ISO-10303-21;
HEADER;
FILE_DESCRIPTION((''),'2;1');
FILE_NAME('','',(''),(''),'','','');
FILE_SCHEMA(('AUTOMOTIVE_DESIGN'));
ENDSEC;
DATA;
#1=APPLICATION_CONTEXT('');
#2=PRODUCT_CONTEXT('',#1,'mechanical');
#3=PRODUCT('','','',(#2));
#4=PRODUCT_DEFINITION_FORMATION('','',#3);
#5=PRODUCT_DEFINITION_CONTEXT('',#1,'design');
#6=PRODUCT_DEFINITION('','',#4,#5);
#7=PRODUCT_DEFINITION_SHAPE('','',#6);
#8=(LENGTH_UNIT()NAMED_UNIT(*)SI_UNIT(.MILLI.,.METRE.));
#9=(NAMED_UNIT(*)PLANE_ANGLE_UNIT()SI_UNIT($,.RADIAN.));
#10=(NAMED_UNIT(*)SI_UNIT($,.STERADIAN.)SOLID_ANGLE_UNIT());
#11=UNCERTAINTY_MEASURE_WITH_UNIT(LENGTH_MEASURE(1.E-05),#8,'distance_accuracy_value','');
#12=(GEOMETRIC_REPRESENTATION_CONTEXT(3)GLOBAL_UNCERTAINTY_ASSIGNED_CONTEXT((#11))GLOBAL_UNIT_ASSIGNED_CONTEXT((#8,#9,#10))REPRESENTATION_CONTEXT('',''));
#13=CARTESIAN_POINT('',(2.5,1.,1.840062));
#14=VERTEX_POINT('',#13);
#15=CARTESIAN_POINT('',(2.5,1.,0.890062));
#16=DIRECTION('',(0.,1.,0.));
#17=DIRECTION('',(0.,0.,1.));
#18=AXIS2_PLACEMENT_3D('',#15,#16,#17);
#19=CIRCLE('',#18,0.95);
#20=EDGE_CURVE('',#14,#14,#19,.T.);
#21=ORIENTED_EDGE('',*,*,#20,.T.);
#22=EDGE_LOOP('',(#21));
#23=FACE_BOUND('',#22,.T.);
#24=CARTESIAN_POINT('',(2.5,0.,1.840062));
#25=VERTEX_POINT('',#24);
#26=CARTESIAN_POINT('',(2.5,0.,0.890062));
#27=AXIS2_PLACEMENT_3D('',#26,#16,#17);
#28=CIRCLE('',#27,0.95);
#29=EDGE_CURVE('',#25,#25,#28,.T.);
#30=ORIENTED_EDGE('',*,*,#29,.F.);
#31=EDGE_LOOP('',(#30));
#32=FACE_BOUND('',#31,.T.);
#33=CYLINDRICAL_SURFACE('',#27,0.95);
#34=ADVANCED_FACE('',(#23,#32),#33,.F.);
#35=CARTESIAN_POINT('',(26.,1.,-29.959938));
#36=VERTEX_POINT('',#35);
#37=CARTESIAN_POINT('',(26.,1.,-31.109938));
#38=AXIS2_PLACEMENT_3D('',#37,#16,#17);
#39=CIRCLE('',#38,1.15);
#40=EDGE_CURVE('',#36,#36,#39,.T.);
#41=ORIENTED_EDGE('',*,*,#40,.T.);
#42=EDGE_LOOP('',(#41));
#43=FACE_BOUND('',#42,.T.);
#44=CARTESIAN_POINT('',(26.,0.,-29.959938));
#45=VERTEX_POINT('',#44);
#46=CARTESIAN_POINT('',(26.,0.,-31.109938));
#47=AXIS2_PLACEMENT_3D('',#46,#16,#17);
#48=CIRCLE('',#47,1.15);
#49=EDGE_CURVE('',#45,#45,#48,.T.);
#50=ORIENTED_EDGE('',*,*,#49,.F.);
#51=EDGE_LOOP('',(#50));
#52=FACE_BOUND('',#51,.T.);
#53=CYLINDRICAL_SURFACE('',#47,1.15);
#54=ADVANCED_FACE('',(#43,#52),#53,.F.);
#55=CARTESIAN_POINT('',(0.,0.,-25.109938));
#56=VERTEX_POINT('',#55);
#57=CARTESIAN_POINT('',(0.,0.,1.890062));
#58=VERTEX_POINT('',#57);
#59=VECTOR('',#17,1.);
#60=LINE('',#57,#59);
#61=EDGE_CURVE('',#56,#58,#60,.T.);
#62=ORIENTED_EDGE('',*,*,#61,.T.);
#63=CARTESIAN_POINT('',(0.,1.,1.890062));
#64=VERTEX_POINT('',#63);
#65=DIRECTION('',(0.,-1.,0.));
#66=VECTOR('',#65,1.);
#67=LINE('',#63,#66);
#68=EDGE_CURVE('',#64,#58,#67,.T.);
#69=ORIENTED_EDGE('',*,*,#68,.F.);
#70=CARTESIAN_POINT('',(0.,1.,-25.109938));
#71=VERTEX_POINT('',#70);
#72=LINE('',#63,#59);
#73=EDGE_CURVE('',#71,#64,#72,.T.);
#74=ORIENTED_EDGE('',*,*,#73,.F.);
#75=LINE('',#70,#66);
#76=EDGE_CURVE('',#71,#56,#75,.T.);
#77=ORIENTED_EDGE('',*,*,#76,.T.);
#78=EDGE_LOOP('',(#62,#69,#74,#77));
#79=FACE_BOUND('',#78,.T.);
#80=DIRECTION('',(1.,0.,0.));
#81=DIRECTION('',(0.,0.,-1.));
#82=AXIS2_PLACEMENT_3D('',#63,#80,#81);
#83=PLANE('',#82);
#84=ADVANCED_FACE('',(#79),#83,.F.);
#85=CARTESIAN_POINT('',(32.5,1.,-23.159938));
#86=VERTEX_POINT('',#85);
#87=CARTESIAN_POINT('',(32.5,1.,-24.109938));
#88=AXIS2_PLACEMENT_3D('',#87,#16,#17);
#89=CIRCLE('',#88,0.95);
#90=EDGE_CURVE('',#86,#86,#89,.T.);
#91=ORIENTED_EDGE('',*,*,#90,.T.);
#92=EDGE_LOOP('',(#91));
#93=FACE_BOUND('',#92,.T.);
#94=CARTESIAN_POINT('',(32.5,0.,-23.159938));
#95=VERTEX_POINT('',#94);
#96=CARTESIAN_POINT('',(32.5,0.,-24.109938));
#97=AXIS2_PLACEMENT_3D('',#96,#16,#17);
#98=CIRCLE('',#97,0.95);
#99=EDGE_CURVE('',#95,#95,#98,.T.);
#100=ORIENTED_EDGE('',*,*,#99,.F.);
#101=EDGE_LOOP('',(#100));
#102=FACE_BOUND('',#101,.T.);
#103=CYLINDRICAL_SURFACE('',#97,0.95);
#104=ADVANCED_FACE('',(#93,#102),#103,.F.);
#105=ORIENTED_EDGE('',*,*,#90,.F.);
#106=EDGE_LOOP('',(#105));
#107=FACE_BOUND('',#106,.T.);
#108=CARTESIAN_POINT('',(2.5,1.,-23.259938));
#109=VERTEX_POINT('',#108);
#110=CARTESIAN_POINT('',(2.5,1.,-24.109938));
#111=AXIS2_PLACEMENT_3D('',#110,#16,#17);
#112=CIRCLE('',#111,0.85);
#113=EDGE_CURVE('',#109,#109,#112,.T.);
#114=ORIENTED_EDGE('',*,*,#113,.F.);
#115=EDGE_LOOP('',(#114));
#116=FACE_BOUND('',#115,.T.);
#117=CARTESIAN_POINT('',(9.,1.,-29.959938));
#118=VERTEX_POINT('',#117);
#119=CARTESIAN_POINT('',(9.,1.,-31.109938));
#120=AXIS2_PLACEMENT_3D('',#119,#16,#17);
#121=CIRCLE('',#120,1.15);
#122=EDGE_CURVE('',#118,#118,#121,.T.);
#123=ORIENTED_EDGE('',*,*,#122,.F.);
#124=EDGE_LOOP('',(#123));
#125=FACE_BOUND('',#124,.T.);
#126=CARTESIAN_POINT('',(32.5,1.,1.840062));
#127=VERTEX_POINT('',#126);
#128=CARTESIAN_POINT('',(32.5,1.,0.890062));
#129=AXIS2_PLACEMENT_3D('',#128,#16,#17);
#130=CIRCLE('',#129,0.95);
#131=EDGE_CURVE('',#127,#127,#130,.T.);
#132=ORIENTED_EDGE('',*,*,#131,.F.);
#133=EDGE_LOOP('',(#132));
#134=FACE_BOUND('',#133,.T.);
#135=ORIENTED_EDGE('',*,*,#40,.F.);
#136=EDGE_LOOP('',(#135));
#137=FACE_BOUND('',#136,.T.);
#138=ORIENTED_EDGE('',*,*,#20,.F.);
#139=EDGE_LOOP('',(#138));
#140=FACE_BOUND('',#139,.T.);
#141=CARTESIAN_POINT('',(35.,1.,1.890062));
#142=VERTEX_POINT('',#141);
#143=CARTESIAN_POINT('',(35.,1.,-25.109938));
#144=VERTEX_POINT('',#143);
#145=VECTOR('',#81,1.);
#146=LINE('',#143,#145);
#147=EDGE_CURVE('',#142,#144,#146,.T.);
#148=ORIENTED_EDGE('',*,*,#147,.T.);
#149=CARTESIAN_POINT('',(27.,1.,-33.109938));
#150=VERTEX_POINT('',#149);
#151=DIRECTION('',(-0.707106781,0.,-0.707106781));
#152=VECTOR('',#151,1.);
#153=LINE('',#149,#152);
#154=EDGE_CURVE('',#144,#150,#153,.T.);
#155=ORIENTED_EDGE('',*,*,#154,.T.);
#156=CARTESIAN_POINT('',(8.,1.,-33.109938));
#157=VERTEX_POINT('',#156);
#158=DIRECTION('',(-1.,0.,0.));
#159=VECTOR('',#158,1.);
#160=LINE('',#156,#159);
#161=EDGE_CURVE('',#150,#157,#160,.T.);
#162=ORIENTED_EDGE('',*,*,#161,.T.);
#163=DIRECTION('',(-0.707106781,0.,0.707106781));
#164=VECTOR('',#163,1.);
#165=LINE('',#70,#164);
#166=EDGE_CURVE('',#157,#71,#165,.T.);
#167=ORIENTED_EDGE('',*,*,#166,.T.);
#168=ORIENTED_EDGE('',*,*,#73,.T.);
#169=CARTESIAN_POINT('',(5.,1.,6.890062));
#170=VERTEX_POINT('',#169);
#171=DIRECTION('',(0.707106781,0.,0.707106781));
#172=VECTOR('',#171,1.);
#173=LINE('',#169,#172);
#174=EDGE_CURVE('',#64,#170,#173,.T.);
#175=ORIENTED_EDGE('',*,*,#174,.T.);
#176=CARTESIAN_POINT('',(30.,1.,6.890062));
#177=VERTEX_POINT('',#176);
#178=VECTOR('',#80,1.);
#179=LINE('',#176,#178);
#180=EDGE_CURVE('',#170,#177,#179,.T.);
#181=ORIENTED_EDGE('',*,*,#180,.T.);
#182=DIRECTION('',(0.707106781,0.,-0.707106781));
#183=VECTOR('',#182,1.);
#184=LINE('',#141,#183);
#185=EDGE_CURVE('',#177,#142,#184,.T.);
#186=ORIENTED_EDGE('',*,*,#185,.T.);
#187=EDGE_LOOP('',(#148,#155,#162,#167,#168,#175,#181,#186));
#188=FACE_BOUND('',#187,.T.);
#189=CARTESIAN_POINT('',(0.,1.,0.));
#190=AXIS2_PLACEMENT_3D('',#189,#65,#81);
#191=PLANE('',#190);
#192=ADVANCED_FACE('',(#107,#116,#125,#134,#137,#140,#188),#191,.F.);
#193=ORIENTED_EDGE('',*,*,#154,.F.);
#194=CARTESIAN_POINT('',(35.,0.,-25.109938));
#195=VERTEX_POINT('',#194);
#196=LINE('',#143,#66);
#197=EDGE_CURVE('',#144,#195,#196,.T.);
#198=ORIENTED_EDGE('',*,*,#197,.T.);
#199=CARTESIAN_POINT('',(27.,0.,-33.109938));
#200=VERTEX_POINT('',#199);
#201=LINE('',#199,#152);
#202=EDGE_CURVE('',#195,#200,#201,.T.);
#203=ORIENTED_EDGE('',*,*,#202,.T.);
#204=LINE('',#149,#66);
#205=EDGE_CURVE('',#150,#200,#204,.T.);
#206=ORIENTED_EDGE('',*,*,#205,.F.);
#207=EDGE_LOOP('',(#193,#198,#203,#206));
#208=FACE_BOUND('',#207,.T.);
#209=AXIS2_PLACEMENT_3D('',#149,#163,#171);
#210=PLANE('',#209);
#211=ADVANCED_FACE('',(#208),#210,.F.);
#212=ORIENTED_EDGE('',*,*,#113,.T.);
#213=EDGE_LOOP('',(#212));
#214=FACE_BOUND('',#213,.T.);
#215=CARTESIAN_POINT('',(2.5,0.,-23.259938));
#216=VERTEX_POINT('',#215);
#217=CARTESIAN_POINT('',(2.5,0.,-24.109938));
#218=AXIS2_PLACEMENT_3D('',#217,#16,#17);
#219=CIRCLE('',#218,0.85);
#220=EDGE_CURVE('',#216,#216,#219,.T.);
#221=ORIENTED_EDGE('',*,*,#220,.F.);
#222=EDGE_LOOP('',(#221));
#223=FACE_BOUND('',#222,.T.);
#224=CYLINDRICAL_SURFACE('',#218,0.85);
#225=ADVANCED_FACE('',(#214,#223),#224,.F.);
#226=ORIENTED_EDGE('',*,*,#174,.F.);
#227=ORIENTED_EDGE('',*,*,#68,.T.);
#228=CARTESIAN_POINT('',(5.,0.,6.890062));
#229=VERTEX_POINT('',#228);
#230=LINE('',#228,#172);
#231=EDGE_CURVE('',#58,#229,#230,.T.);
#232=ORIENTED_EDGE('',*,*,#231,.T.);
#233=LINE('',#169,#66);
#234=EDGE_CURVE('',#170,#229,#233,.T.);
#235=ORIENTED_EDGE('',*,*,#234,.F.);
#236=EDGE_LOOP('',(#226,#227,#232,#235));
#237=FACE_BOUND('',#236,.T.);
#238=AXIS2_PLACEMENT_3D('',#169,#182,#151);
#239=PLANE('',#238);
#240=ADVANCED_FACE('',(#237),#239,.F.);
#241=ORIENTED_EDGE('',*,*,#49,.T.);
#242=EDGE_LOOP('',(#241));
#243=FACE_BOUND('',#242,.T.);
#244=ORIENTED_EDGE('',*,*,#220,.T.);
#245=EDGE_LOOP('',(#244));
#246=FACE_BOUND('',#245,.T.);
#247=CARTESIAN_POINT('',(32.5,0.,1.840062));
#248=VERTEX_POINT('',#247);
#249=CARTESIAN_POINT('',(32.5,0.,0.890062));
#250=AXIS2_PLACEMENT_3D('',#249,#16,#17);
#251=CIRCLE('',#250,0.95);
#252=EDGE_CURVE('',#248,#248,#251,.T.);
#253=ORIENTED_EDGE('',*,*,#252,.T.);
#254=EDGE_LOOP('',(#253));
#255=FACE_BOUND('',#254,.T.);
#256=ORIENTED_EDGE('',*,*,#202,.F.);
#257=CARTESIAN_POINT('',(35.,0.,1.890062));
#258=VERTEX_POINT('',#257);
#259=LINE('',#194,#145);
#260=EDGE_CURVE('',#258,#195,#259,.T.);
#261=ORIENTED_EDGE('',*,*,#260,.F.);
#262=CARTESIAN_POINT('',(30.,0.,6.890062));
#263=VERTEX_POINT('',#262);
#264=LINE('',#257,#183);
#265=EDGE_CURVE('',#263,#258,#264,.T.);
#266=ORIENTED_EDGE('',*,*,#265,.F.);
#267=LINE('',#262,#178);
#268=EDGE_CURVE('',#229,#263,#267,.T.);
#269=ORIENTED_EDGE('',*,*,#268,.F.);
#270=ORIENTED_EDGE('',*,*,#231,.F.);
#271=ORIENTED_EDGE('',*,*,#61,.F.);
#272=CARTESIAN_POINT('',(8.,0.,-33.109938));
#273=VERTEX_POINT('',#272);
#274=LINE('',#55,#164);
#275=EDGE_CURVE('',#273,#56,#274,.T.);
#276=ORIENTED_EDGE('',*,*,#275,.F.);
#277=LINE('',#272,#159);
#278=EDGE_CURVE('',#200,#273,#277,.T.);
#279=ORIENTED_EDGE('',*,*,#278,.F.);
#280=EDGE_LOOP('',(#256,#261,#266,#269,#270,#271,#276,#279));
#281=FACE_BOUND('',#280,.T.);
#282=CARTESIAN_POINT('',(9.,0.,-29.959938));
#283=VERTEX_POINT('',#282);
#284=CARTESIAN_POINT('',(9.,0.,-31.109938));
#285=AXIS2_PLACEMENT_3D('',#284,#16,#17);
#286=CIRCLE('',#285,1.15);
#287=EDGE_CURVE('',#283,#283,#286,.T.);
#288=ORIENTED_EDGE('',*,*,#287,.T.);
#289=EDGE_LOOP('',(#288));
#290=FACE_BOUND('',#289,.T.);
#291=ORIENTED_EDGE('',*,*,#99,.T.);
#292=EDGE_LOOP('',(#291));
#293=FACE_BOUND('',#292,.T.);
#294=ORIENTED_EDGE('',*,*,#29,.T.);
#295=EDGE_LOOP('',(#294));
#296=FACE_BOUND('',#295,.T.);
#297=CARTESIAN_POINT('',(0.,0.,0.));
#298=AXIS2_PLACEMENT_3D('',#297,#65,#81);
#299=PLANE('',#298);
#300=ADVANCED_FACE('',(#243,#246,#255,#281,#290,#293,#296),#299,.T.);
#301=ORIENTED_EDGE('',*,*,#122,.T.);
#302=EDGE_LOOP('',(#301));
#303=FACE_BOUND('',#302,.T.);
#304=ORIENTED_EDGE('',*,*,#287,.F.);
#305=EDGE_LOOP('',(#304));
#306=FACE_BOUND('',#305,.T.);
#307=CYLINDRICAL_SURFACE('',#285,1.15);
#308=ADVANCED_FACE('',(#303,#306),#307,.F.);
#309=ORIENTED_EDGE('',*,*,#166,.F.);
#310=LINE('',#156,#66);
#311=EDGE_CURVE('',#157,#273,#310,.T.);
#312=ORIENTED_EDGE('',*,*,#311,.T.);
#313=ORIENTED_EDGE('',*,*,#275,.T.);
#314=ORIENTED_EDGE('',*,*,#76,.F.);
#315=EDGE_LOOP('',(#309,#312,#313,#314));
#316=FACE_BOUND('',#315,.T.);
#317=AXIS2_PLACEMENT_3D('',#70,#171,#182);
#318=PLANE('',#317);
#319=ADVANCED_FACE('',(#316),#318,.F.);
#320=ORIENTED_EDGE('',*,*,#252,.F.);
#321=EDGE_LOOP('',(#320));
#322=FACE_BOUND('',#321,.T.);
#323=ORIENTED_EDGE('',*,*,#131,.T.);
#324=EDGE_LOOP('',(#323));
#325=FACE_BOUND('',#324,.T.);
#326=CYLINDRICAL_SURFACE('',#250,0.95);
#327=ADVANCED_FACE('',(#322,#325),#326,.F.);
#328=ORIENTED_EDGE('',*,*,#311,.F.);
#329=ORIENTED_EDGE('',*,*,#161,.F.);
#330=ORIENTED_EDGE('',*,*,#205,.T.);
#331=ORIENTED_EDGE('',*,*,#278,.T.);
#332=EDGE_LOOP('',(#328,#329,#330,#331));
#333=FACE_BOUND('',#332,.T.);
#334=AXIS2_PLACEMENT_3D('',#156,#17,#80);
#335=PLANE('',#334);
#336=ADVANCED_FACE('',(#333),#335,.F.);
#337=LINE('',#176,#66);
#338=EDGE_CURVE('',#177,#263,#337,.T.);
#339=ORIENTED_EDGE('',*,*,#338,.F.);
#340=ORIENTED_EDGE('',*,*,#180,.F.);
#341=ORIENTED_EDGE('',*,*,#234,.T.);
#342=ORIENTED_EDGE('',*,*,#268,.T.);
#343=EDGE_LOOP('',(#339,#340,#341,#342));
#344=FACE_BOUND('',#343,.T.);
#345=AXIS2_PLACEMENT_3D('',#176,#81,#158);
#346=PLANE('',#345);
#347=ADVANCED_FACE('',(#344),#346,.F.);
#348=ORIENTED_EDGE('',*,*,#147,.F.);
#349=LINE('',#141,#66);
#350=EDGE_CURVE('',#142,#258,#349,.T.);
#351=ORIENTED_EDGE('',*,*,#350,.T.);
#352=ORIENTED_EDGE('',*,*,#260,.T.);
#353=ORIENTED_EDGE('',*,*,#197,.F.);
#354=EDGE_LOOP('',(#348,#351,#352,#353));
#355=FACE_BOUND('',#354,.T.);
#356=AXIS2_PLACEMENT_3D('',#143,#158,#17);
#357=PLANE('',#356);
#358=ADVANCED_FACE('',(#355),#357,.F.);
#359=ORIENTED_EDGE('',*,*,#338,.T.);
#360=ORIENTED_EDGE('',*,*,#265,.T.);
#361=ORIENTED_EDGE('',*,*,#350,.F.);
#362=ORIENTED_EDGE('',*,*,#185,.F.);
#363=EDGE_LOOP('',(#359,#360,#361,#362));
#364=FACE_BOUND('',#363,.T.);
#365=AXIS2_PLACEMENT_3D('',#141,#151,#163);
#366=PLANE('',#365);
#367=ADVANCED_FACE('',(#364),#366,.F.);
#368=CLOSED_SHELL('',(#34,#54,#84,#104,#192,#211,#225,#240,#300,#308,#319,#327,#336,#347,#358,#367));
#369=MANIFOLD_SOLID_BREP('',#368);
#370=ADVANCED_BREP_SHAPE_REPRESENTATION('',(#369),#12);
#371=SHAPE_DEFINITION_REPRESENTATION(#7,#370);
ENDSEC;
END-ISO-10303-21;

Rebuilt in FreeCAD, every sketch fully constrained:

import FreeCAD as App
import Part
import Sketcher
from FreeCAD import Vector
Q = App.Units.Quantity


def add_polygon(sketch, points):
    """Adds a closed chain of lines whose ends are joined by coincident constraints."""
    first, n = sketch.GeometryCount, len(points)
    for a, b in zip(points, points[1:] + points[:1]):
        sketch.addGeometry(Part.LineSegment(App.Vector(*a, 0), App.Vector(*b, 0)), False)
    for i in range(n):
        sketch.addConstraint(Sketcher.Constraint("Coincident", first + i, 2, first + (i + 1) % n, 1))

doc = App.newDocument("Part")
params = doc.addObject("Spreadsheet::Sheet", "Params")
for row, (alias, value) in enumerate([
    ("sketch1_width", "25 mm"),
    ("sketch1_width2", "19 mm"),
    ("sketch1_height", "27 mm"),
    ("pad1_length", "1 mm"),
    ("sketch2_diameter", "1.9 mm"),
    ("sketch2_diameter2", "1.7 mm"),
    ("pocket1_length", "1 mm"),
    ("sketch3_diameter", "2.3 mm"),
    ("pocket2_length", "1 mm"),
], start=1):
    params.set(f"A{row}", alias)
    params.set(f"B{row}", "=" + value)
    params.setAlias(f"B{row}", alias)

body = doc.addObject("PartDesign::Body", "Body")

sketch1 = body.newObject("Sketcher::SketchObject", "Sketch")
sketch1.AttachmentSupport = (doc.getObject("XZ_Plane"), [""])
sketch1.MapMode = "FlatFace"
add_polygon(sketch1, [(5, 7), (30, 7), (35, 2), (35, -25), (27, -33), (8, -33), (0, -25), (0, 2)])
sketch1.addConstraint([
    Sketcher.Constraint("Horizontal", 0),
    Sketcher.Constraint("Vertical", 2),
    Sketcher.Constraint("Horizontal", 4),
    Sketcher.Constraint("Vertical", 6),
    Sketcher.Constraint("PointOnObject", 5, 2, -2),
    Sketcher.Constraint("Perpendicular", 1, 3),
    Sketcher.Constraint("Perpendicular", 3, 5),
    Sketcher.Constraint("Perpendicular", 5, 7),
    Sketcher.Constraint("Horizontal", 2, 2, 5, 2),
    Sketcher.Constraint("Horizontal", 1, 2, 6, 2),
    Sketcher.Constraint("Equal", 3, 5),
    Sketcher.Constraint("DistanceX", 0, 1, 0, 2, Q("25 mm")),
    Sketcher.Constraint("DistanceX", 4, 2, 4, 1, Q("19 mm")),
    Sketcher.Constraint("DistanceY", 2, 2, 2, 1, Q("27 mm")),
    Sketcher.Constraint("DistanceX", -1, 1, 0, 2, Q("30 mm")),
    Sketcher.Constraint("DistanceY", -1, 1, 0, 2, Q("6.890062 mm")),
])
sketch1.setExpression("Constraints[19]", "Params.sketch1_width")
sketch1.setExpression("Constraints[20]", "Params.sketch1_width2")
sketch1.setExpression("Constraints[21]", "Params.sketch1_height")
pad1 = body.newObject("PartDesign::Pad", "Pad")
pad1.Profile = sketch1
pad1.setExpression("Length", "Params.pad1_length")
pad1.Reversed = True

sketch2 = body.newObject("Sketcher::SketchObject", "Sketch001")
sketch2.AttachmentSupport = (doc.getObject("XZ_Plane"), [""])
sketch2.MapMode = "FlatFace"
sketch2.AttachmentOffset = App.Placement(Vector(0, 0, -1), App.Rotation())
sketch2.addGeometry([
    Part.Circle(Vector(32.5, 0.9, 0), Vector(0, 0, 1), 0.9),
    Part.Circle(Vector(2.5, 0.9, 0), Vector(0, 0, 1), 0.9),
    Part.Circle(Vector(32.5, -24.1, 0), Vector(0, 0, 1), 0.9),
    Part.Circle(Vector(2.5, -24.1, 0), Vector(0, 0, 1), 0.8),
], False)
sketch2.addConstraint([
    Sketcher.Constraint("Equal", 0, 1),
    Sketcher.Constraint("Equal", 1, 2),
    Sketcher.Constraint("Horizontal", 0, 3, 1, 3),
    Sketcher.Constraint("Horizontal", 2, 3, 3, 3),
    Sketcher.Constraint("Vertical", 0, 3, 2, 3),
    Sketcher.Constraint("Vertical", 1, 3, 3, 3),
    Sketcher.Constraint("Diameter", 0, Q("1.9 mm")),
    Sketcher.Constraint("Diameter", 3, Q("1.7 mm")),
    Sketcher.Constraint("DistanceX", 1, 3, 0, 3, Q("30 mm")),
    Sketcher.Constraint("DistanceY", 2, 3, 0, 3, Q("25 mm")),
    Sketcher.Constraint("DistanceX", -1, 1, 0, 3, Q("32.5 mm")),
    Sketcher.Constraint("DistanceY", -1, 1, 0, 3, Q("0.890062 mm")),
])
sketch2.setExpression("Constraints[6]", "Params.sketch2_diameter")
sketch2.setExpression("Constraints[7]", "Params.sketch2_diameter2")
pocket1 = body.newObject("PartDesign::Pocket", "Pocket")
pocket1.Profile = sketch2
pocket1.setExpression("Length", "Params.pocket1_length")
pocket1.Reversed = True

sketch3 = body.newObject("Sketcher::SketchObject", "Sketch002")
sketch3.AttachmentSupport = (doc.getObject("XZ_Plane"), [""])
sketch3.MapMode = "FlatFace"
sketch3.AttachmentOffset = App.Placement(Vector(0, 0, -1), App.Rotation())
sketch3.addGeometry([
    Part.Circle(Vector(26, -31.1, 0), Vector(0, 0, 1), 1.1),
    Part.Circle(Vector(9, -31.1, 0), Vector(0, 0, 1), 1.1),
], False)
sketch3.addConstraint([
    Sketcher.Constraint("Equal", 0, 1),
    Sketcher.Constraint("Horizontal", 0, 3, 1, 3),
    Sketcher.Constraint("Diameter", 0, Q("2.3 mm")),
    Sketcher.Constraint("DistanceX", -1, 1, 0, 3, Q("26 mm")),
    Sketcher.Constraint("DistanceX", -1, 1, 1, 3, Q("9 mm")),
    Sketcher.Constraint("DistanceY", 0, 3, -1, 1, Q("31.109938 mm")),
])
sketch3.setExpression("Constraints[2]", "Params.sketch3_diameter")
pocket2 = body.newObject("PartDesign::Pocket", "Pocket001")
pocket2.Profile = sketch3
pocket2.setExpression("Length", "Params.pocket2_length")
pocket2.Reversed = True

doc.recompute()
